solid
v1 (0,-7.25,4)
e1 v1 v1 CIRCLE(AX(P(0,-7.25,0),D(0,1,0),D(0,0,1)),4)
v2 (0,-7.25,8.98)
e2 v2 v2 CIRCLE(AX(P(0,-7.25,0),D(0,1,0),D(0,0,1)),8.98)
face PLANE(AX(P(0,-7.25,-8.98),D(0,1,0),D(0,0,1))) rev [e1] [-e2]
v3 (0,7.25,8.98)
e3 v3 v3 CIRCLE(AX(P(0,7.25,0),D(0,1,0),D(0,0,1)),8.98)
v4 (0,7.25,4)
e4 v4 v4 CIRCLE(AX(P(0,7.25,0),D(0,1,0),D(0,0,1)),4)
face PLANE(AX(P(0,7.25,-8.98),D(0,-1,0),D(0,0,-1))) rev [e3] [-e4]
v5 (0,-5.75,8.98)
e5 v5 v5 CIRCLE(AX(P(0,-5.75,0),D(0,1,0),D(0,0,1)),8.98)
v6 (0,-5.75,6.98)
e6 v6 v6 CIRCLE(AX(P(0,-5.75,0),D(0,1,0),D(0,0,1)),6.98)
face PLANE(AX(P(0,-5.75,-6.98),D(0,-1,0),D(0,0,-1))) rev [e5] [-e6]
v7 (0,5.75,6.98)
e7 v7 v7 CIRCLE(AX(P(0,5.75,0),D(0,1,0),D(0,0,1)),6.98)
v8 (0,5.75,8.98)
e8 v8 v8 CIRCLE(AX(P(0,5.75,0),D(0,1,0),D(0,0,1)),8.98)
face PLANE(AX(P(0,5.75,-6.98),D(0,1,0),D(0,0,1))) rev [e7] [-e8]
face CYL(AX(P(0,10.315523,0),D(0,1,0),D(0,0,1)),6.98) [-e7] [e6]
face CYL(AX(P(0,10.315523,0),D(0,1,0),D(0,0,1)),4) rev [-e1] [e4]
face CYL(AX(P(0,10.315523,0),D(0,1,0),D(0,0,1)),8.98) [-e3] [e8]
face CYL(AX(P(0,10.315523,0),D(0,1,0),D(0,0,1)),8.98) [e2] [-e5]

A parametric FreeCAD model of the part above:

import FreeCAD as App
import Part
import Sketcher
from FreeCAD import Vector
Q = App.Units.Quantity

doc = App.newDocument("Part")
body = doc.addObject("PartDesign::Body", "Body")

# Sketch on YZ plane
sketch1 = doc.addObject("Sketcher::SketchObject", "Sketch")
body.addObject(sketch1)
sketch1.AttachmentSupport = (doc.YZ_Plane, [""])
sketch1.MapMode = "FlatFace"
sketch1.addGeometry(Part.LineSegment(Vector(-5.75, -6.98, 0), Vector(5.75, -6.98, 0)), False)
sketch1.addGeometry(Part.LineSegment(Vector(5.75, -6.98, 0), Vector(5.75, -8.98, 0)), False)
sketch1.addGeometry(Part.LineSegment(Vector(5.75, -8.98, 0), Vector(7.25, -8.98, 0)), False)
sketch1.addGeometry(Part.LineSegment(Vector(7.25, -8.98, 0), Vector(7.25, -4, 0)), False)
sketch1.addGeometry(Part.LineSegment(Vector(7.25, -4, 0), Vector(-7.25, -4, 0)), False)
sketch1.addGeometry(Part.LineSegment(Vector(-7.25, -4, 0), Vector(-7.25, -8.98, 0)), False)
sketch1.addGeometry(Part.LineSegment(Vector(-7.25, -8.98, 0), Vector(-5.75, -8.98, 0)), False)
sketch1.addGeometry(Part.LineSegment(Vector(-5.75, -8.98, 0), Vector(-5.75, -6.98, 0)), False)
sketch1.addConstraint(Sketcher.Constraint("Coincident", 0, 2, 1, 1))
sketch1.addConstraint(Sketcher.Constraint("Coincident", 1, 2, 2, 1))
sketch1.addConstraint(Sketcher.Constraint("Coincident", 2, 2, 3, 1))
sketch1.addConstraint(Sketcher.Constraint("Coincident", 3, 2, 4, 1))
sketch1.addConstraint(Sketcher.Constraint("Coincident", 4, 2, 5, 1))
sketch1.addConstraint(Sketcher.Constraint("Coincident", 5, 2, 6, 1))
sketch1.addConstraint(Sketcher.Constraint("Coincident", 6, 2, 7, 1))
sketch1.addConstraint(Sketcher.Constraint("Coincident", 7, 2, 0, 1))
sketch1.addConstraint(Sketcher.Constraint("Horizontal", 0))
sketch1.addConstraint(Sketcher.Constraint("Vertical", 1))
sketch1.addConstraint(Sketcher.Constraint("Horizontal", 2))
sketch1.addConstraint(Sketcher.Constraint("Vertical", 3))
sketch1.addConstraint(Sketcher.Constraint("Horizontal", 4))
sketch1.addConstraint(Sketcher.Constraint("Vertical", 5))
sketch1.addConstraint(Sketcher.Constraint("Horizontal", 6))
sketch1.addConstraint(Sketcher.Constraint("Vertical", 7))
sketch1.addConstraint(Sketcher.Constraint("Symmetric", 2, 2, 5, 2, -2))
sketch1.addConstraint(Sketcher.Constraint("Equal", 2, 6))
sketch1.addConstraint(Sketcher.Constraint("DistanceY", 1, 2, 1, 1, Q("2 mm")))
sketch1.addConstraint(Sketcher.Constraint("DistanceX", 0, 1, 0, 2, Q("11.5 mm")))
sketch1.addConstraint(Sketcher.Constraint("DistanceX", 2, 1, 2, 2, Q("1.5 mm")))
sketch1.addConstraint(Sketcher.Constraint("DistanceY", 3, 2, -1, 1, Q("4 mm")))
sketch1.addConstraint(Sketcher.Constraint("DistanceY", 3, 1, 3, 2, Q("4.98 mm")))
revolution = doc.addObject("PartDesign::Revolution", "Revolution")
body.addObject(revolution)
revolution.Profile = sketch1
revolution.ReferenceAxis = (sketch1, ["H_Axis"])
revolution.Angle = 360

doc.recompute()
